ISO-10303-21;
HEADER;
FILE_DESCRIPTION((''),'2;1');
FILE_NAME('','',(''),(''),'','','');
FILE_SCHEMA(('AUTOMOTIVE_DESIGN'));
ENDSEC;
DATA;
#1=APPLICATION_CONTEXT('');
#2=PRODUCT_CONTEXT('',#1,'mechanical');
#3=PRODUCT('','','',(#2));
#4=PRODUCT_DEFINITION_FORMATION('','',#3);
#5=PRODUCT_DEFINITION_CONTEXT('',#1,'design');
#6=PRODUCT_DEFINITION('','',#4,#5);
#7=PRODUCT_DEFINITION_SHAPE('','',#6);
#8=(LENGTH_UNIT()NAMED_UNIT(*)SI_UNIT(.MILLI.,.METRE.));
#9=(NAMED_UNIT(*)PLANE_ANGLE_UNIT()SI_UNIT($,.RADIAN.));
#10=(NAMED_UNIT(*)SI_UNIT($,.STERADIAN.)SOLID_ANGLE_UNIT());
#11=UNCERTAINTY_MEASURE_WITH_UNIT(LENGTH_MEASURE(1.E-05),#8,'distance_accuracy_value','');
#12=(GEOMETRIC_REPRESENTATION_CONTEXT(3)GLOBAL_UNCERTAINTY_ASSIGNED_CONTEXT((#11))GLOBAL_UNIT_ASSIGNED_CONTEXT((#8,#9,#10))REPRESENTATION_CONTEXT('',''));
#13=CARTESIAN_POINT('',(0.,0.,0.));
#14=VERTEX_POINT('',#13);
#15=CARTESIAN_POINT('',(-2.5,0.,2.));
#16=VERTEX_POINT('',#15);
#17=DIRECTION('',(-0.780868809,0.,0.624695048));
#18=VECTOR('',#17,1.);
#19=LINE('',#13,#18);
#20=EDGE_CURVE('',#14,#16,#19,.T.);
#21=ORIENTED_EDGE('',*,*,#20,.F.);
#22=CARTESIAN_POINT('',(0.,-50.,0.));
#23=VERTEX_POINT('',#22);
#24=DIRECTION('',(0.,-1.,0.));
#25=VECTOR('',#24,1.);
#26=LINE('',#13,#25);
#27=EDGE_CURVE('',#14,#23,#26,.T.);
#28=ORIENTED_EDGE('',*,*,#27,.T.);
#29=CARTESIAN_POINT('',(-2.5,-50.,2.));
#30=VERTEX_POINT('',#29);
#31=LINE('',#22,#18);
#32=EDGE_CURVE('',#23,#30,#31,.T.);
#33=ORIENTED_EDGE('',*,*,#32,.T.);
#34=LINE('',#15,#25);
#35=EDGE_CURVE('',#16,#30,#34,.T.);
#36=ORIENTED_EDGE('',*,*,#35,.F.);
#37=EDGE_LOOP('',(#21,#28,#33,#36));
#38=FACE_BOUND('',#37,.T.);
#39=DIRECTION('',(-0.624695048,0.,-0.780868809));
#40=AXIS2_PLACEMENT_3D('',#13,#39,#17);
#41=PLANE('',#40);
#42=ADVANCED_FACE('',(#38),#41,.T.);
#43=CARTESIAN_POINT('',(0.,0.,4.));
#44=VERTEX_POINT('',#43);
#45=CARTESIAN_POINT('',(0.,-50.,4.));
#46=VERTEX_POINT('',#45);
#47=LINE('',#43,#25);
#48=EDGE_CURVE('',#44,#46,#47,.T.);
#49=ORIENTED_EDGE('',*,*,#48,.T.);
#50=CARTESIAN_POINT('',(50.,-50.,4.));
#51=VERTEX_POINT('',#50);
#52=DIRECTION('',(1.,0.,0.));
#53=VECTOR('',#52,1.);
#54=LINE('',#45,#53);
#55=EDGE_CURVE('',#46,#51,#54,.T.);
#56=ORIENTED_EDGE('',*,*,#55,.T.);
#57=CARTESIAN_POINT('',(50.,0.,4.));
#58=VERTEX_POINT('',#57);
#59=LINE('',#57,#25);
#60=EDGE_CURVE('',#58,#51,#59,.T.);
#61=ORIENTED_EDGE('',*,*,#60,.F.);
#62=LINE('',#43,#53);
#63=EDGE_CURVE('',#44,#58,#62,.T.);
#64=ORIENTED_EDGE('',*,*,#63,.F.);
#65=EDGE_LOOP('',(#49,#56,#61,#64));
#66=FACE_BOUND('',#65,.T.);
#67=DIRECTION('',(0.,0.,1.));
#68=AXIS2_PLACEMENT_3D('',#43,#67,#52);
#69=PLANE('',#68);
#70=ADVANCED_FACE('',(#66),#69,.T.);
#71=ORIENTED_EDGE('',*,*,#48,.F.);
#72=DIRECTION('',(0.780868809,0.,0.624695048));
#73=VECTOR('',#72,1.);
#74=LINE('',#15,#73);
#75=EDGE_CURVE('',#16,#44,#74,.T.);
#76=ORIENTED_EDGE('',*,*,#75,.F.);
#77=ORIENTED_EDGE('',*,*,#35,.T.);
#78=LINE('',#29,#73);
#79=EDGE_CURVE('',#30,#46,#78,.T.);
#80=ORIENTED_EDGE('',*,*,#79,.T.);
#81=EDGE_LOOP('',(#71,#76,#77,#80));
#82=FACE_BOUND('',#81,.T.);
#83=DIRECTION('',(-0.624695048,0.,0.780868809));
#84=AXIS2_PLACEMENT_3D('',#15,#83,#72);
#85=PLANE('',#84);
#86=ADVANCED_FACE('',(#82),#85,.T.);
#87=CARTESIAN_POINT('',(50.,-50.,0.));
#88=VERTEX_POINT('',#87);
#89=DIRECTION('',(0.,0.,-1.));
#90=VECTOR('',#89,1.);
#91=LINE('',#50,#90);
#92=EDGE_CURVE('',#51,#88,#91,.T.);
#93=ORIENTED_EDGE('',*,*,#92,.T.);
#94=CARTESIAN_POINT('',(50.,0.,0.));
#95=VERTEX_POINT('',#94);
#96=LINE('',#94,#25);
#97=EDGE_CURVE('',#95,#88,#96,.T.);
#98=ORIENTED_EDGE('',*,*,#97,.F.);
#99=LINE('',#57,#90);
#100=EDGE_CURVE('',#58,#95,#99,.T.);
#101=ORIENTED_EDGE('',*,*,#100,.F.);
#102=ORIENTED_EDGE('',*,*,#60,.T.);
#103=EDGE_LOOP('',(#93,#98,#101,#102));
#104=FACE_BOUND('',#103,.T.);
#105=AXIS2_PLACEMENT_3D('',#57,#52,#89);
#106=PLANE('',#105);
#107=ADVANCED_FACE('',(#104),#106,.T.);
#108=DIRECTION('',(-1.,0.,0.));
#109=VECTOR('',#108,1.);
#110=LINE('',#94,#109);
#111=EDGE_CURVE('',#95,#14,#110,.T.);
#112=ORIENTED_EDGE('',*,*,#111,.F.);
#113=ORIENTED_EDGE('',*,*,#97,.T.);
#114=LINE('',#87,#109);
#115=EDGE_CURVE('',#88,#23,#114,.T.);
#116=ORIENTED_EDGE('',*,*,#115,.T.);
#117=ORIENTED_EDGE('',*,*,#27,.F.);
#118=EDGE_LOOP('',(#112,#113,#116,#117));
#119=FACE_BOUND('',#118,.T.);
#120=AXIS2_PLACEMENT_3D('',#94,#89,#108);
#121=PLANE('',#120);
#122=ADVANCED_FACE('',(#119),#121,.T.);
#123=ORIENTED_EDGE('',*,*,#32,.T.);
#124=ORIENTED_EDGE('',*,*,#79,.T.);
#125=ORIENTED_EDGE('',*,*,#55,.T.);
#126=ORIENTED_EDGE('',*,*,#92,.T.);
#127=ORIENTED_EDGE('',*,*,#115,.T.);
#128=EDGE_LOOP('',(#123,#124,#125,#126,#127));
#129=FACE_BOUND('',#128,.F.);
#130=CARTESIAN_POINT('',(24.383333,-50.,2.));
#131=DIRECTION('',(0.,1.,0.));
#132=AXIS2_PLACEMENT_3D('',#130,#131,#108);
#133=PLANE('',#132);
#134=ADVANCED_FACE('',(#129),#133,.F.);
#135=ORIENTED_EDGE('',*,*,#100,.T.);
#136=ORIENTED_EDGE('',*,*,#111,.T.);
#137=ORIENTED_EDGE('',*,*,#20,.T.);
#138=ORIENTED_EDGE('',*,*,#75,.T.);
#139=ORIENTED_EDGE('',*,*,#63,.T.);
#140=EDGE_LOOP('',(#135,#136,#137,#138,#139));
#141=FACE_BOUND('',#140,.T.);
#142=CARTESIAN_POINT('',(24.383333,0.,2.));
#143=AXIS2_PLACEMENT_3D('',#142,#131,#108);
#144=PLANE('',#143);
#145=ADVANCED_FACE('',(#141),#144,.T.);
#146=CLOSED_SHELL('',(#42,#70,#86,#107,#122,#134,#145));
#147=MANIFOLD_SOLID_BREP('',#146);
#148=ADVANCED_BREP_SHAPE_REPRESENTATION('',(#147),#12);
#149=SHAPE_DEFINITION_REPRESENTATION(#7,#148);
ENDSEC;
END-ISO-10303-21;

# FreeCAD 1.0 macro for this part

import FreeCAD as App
import Part
import Sketcher

V = App.Vector


def add_polygon(sketch, points):
    """Adds a closed chain of lines whose ends are joined by coincident constraints."""
    first, n = sketch.GeometryCount, len(points)
    for a, b in zip(points, points[1:] + points[:1]):
        sketch.addGeometry(Part.LineSegment(App.Vector(*a, 0), App.Vector(*b, 0)), False)
    for i in range(n):
        sketch.addConstraint(Sketcher.Constraint("Coincident", first + i, 2, first + (i + 1) % n, 1))

doc = App.newDocument("Part")
body = doc.addObject("PartDesign::Body", "Body")

# Sketch on XZ plane
sketch1 = body.newObject("Sketcher::SketchObject", "Sketch")
sketch1.AttachmentSupport = (doc.getObject("XZ_Plane"), [""])
sketch1.MapMode = "FlatFace"
add_polygon(sketch1, [(-2.5, 2), (0, 0), (50, 0), (50, 4), (0, 4)])  # lines 0-4
sketch1.addConstraint([
    Sketcher.Constraint("Horizontal", 1),
    Sketcher.Constraint("Vertical", 2),
    Sketcher.Constraint("Horizontal", 3),
    Sketcher.Constraint("Coincident", 0, 2, -1, 1),
    Sketcher.Constraint("PointOnObject", 3, 2, -2),
    Sketcher.Constraint("Equal", 0, 4),
    Sketcher.Constraint("DistanceX", 1, 1, 1, 2, 50.0),
    Sketcher.Constraint("DistanceY", 2, 1, 2, 2, 4.0),
    Sketcher.Constraint("DistanceX", 4, 2, -1, 1, 2.5),
])
pad1 = body.newObject("PartDesign::Pad", "Pad")
pad1.Profile = sketch1
pad1.Length = 50

doc.recompute()
